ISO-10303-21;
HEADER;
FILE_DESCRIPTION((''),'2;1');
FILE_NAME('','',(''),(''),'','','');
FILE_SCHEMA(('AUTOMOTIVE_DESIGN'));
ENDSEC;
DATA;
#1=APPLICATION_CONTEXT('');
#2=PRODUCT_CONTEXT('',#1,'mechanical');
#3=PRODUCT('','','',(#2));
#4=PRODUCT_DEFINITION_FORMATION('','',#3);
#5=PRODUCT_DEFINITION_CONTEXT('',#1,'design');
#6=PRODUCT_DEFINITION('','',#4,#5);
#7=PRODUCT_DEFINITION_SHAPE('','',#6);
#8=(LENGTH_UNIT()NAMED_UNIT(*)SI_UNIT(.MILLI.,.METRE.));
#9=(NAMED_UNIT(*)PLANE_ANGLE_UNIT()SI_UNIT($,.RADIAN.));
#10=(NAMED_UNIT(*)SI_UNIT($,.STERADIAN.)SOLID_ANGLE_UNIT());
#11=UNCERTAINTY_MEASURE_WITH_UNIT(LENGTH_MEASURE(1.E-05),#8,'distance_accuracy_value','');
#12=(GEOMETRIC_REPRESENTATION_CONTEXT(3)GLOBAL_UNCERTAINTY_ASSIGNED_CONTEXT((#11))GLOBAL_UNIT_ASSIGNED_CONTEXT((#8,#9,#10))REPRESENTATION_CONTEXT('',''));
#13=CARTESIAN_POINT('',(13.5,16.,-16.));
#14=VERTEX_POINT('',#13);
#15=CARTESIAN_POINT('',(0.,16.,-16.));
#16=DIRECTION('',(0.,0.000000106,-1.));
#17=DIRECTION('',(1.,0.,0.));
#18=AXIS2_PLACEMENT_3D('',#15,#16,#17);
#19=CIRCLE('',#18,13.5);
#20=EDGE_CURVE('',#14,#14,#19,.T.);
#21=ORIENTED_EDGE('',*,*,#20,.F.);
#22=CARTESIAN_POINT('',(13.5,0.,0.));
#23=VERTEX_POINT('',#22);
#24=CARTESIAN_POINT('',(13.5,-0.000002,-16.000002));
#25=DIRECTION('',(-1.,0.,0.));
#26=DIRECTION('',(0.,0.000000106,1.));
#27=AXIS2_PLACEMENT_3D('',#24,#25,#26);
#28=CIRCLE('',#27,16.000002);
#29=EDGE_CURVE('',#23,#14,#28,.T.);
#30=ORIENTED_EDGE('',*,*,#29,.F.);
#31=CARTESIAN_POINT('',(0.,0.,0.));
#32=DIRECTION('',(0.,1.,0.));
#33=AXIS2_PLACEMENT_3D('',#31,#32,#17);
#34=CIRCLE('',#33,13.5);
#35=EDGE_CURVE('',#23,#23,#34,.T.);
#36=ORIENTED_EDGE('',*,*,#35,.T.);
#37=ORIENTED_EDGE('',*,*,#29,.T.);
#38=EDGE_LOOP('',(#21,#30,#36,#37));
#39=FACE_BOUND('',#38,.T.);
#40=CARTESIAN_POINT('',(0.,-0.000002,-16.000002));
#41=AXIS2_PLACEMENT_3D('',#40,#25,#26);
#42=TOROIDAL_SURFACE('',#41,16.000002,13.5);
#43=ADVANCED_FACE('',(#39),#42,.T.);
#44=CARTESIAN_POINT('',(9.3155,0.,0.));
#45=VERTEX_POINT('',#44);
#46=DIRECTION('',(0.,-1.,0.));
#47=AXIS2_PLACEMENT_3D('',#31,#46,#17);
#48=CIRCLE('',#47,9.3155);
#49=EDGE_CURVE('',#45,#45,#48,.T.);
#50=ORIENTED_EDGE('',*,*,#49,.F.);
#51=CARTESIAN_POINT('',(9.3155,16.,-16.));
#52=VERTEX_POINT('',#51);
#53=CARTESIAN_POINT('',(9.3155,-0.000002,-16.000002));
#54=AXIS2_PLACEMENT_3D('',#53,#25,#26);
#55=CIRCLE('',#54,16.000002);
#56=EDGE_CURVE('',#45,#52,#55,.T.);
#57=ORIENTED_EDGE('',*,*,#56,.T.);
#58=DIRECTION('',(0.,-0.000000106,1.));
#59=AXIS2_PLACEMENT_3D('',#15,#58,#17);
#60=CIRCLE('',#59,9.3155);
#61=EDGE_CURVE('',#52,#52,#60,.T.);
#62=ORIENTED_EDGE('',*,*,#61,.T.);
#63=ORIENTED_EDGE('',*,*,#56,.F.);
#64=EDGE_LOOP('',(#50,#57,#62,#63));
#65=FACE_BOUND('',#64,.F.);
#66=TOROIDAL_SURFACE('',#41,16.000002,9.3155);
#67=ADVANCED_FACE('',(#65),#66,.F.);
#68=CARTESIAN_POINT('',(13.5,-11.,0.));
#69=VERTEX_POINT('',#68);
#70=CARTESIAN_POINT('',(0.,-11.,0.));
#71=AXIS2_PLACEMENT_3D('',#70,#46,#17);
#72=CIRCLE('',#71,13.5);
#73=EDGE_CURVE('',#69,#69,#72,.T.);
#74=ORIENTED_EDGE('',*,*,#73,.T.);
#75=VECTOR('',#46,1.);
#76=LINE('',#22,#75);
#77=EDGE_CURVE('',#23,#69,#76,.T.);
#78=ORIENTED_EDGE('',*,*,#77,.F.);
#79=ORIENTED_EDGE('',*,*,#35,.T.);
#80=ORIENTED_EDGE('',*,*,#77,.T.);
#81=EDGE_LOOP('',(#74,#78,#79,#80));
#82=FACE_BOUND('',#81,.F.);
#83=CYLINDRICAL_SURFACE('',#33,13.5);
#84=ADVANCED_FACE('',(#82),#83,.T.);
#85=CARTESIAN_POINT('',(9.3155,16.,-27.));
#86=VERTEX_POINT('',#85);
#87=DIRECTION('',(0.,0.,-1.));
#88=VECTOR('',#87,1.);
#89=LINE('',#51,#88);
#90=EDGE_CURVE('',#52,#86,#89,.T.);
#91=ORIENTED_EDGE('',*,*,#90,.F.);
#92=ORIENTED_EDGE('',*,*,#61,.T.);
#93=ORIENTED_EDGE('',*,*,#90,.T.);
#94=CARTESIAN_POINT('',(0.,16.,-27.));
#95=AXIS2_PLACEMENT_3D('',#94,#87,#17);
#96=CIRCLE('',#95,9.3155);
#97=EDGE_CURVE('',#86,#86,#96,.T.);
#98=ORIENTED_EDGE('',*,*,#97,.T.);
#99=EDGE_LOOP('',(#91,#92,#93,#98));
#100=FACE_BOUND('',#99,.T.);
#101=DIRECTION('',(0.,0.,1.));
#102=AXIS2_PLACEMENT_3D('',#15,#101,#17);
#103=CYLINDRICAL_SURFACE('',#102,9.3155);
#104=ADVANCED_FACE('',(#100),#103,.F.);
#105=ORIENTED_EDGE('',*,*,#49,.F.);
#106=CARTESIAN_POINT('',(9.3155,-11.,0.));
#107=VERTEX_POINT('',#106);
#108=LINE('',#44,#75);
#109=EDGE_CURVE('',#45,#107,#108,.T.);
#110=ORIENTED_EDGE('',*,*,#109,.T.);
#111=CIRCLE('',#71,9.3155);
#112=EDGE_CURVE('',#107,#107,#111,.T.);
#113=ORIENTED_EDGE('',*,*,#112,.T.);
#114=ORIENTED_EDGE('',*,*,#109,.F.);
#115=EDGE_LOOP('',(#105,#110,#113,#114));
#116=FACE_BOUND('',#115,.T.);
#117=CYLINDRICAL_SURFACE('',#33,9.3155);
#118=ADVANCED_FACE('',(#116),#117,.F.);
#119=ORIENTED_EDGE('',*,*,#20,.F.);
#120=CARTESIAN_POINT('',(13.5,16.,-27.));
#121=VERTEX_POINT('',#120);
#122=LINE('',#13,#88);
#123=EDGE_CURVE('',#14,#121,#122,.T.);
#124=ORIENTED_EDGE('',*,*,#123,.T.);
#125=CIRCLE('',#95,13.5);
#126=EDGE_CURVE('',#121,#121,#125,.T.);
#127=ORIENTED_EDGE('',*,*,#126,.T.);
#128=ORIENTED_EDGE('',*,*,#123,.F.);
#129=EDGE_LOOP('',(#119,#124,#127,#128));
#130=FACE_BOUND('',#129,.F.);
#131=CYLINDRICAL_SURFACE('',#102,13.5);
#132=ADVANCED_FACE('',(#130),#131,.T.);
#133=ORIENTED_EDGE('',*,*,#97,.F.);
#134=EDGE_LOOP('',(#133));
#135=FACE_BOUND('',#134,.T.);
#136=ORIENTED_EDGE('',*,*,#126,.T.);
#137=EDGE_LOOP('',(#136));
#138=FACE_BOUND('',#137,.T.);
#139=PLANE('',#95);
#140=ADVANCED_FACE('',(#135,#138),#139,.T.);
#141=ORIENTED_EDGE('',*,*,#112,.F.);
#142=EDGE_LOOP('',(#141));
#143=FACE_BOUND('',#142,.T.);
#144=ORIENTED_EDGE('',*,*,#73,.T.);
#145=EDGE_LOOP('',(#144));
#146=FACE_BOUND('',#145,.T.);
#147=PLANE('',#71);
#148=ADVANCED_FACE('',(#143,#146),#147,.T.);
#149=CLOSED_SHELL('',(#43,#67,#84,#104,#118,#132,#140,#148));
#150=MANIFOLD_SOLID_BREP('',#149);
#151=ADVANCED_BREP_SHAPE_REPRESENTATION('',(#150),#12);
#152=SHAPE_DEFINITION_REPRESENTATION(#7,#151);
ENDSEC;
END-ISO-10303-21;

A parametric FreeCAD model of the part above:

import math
import FreeCAD as App
import Part
import Sketcher
from FreeCAD import Vector

doc = App.newDocument("Part")
body = doc.addObject("PartDesign::Body", "Body")

# Sketch on XZ plane
sketch1 = body.newObject("Sketcher::SketchObject", "Sketch")
sketch1.AttachmentSupport = (doc.getObject("XZ_Plane"), [""])
sketch1.MapMode = "FlatFace"
sketch1.addGeometry([
    Part.Circle(Vector(0, 0, 0), Vector(0, 0, 1), 14),
    Part.Circle(Vector(0, 0, 0), Vector(0, 0, 1), 9),
], False)
sketch1.addConstraint([
    Sketcher.Constraint("Coincident", 0, 3, -1, 1),
    Sketcher.Constraint("Coincident", 1, 3, -1, 1),
    Sketcher.Constraint("Diameter", 0, 27.0),
    Sketcher.Constraint("Diameter", 1, 18.631),
])
pad1 = body.newObject("PartDesign::Pad", "Pad")
pad1.Profile = sketch1
pad1.Length = 11

# Sketch on XZ plane
sketch2 = body.newObject("Sketcher::SketchObject", "Sketch001")
sketch2.AttachmentSupport = (doc.getObject("XZ_Plane"), [""])
sketch2.MapMode = "FlatFace"
sketch2.addGeometry([
    Part.Circle(Vector(0, 0, 0), Vector(0, 0, 1), 14),
    Part.Circle(Vector(0, 0, 0), Vector(0, 0, 1), 9),
], False)
sketch2.addConstraint([
    Sketcher.Constraint("Coincident", 0, 3, -1, 1),
    Sketcher.Constraint("Coincident", 1, 3, -1, 1),
    Sketcher.Constraint("Diameter", 0, 27.0),
    Sketcher.Constraint("Diameter", 1, 18.631),
])

# Sketch on YZ plane
sketch3 = body.newObject("Sketcher::SketchObject", "Sketch002")
sketch3.AttachmentSupport = (doc.getObject("YZ_Plane"), [""])
sketch3.MapMode = "FlatFace"
sketch3.addGeometry(Part.ArcOfCircle(Part.Circle(Vector(0, -16, 0), Vector(0, 0, 1), 16), math.radians(0), math.radians(90)), False)
sketch3.addConstraint([
    Sketcher.Constraint("Coincident", 0, 2, -1, 1),
    Sketcher.Constraint("PointOnObject", 0, 3, -2),
    Sketcher.Constraint("Radius", 0, 16.000002),
    Sketcher.Constraint("DistanceY", 0, 1, -1, 1, 16.0),
])
doc.recompute()

additivepipe = body.newObject("PartDesign::AdditivePipe", "AdditivePipe")
additivepipe.Profile = sketch2
additivepipe.Spine = (sketch3, ["Edge1"])

# Sketch on XY plane
sketch4 = body.newObject("Sketcher::SketchObject", "Sketch003")
sketch4.AttachmentSupport = (doc.getObject("XY_Plane"), [""])
sketch4.MapMode = "FlatFace"
sketch4.AttachmentOffset = App.Placement(Vector(0, 0, -16), App.Rotation())
sketch4.addGeometry([
    Part.Circle(Vector(0, 16, 0), Vector(0, 0, 1), 14),
    Part.Circle(Vector(0, 16, 0), Vector(0, 0, 1), 9),
], False)
sketch4.addConstraint([
    Sketcher.Constraint("Coincident", 1, 3, 0, 3),
    Sketcher.Constraint("PointOnObject", 0, 3, -2),
    Sketcher.Constraint("Diameter", 0, 27.0),
    Sketcher.Constraint("Diameter", 1, 18.631),
    Sketcher.Constraint("DistanceY", -1, 1, 0, 3, 16.0),
])
pad2 = body.newObject("PartDesign::Pad", "Pad001")
pad2.Profile = sketch4
pad2.Length = 11
pad2.Reversed = True

doc.recompute()
